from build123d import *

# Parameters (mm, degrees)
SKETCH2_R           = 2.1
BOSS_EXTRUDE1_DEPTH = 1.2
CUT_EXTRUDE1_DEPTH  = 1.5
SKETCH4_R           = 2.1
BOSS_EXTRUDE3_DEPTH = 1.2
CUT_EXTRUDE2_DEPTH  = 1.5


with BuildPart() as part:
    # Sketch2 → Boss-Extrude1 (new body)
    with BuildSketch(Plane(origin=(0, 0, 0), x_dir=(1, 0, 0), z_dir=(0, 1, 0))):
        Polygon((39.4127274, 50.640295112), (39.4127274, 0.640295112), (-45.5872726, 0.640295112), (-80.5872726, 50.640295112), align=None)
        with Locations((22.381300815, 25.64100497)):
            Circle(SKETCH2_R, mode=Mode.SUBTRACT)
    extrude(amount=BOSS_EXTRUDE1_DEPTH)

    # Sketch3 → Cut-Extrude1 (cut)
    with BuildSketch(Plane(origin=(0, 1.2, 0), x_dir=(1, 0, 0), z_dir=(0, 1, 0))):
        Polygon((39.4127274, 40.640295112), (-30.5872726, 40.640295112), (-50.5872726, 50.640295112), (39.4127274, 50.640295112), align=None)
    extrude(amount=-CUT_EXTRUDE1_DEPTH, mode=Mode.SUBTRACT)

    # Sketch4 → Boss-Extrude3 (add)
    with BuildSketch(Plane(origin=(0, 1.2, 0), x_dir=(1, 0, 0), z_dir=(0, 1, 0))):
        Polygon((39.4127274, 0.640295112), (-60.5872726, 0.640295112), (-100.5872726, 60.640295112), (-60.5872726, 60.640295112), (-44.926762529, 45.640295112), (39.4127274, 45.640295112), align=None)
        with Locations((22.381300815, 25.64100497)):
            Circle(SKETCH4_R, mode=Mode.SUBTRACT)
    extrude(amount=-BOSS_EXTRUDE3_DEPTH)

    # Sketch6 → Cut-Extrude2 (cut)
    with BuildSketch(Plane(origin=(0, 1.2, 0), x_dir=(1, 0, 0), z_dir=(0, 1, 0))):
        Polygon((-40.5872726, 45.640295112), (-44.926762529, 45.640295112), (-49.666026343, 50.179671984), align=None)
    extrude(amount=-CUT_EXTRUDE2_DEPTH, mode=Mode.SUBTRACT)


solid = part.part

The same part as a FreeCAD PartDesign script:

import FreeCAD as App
import Part
import Sketcher

V = App.Vector


def add_polygon(sketch, points):
    """Adds a closed chain of lines whose ends are joined by coincident constraints."""
    first, n = sketch.GeometryCount, len(points)
    for a, b in zip(points, points[1:] + points[:1]):
        sketch.addGeometry(Part.LineSegment(App.Vector(*a, 0), App.Vector(*b, 0)), False)
    for i in range(n):
        sketch.addConstraint(Sketcher.Constraint("Coincident", first + i, 2, first + (i + 1) % n, 1))

doc = App.newDocument("Part")
body = doc.addObject("PartDesign::Body", "Body")

# Sketch on XZ plane
sketch1 = body.newObject("Sketcher::SketchObject", "Sketch")
sketch1.AttachmentSupport = (doc.getObject("XZ_Plane"), [""])
sketch1.MapMode = "FlatFace"
add_polygon(sketch1, [(39.4, -0.6), (39.4, -50.6), (-80.6, -50.6), (-45.6, -0.6)])  # lines 0-3
sketch1.addGeometry(Part.Circle(V(22.4, -25.6, 0), V(0, 0, 1), 2.1), False)  # 4
sketch1.addConstraint([
    Sketcher.Constraint("Vertical", 0),
    Sketcher.Constraint("Horizontal", 1),
    Sketcher.Constraint("Horizontal", 3),
    Sketcher.Constraint("Diameter", 4, 4.2),
    Sketcher.Constraint("DistanceX", 1, 2, 1, 1, 120.0),
    Sketcher.Constraint("DistanceX", 3, 1, 3, 2, 85.0),
    Sketcher.Constraint("DistanceY", 0, 2, 0, 1, 50.0),
    Sketcher.Constraint("DistanceX", -1, 1, 4, 3, 22.381301),
    Sketcher.Constraint("DistanceY", 0, 2, 4, 3, 24.99929),
    Sketcher.Constraint("DistanceY", 4, 3, -1, 1, 25.641005),
    Sketcher.Constraint("DistanceX", -1, 1, 0, 2, 39.412727),
])
pad1 = body.newObject("PartDesign::Pad", "Pad")
pad1.Profile = sketch1
pad1.Length = 1.2
pad1.Reversed = True

# Sketch on XZ plane
sketch2 = body.newObject("Sketcher::SketchObject", "Sketch001")
sketch2.AttachmentSupport = (doc.getObject("XZ_Plane"), [""])
sketch2.MapMode = "FlatFace"
sketch2.AttachmentOffset = App.Placement(V(0, 0, -1.2), App.Rotation())
add_polygon(sketch2, [(-31, -41), (39, -41), (39, -51), (-51, -51)])  # lines 0-3
sketch2.addConstraint([
    Sketcher.Constraint("Horizontal", 0),
    Sketcher.Constraint("Vertical", 1),
    Sketcher.Constraint("Horizontal", 2),
    Sketcher.Constraint("DistanceX", 0, 1, 0, 2, 70.0),
    Sketcher.Constraint("DistanceX", 2, 2, 2, 1, 90.0),
    Sketcher.Constraint("DistanceY", 1, 2, 1, 1, 10.0),
    Sketcher.Constraint("DistanceX", -1, 1, 0, 2, 39.412727),
    Sketcher.Constraint("DistanceY", 0, 2, -1, 1, 40.640295),
])
pocket1 = body.newObject("PartDesign::Pocket", "Pocket")
pocket1.Profile = sketch2
pocket1.Length = 1.5
pocket1.Reversed = True

# Sketch on XZ plane
sketch3 = body.newObject("Sketcher::SketchObject", "Sketch002")
sketch3.AttachmentSupport = (doc.getObject("XZ_Plane"), [""])
sketch3.MapMode = "FlatFace"
sketch3.AttachmentOffset = App.Placement(V(0, 0, -1.2), App.Rotation())
add_polygon(sketch3, [(-60.6, -0.6), (39.4, -0.6), (39.4, -45.6), (-44.9, -45.6), (-60.6, -60.6), (-100.6, -60.6)])  # lines 0-5
sketch3.addGeometry(Part.Circle(V(22.4, -25.6, 0), V(0, 0, 1), 2.1), False)  # 6
sketch3.addConstraint([
    Sketcher.Constraint("Horizontal", 0),
    Sketcher.Constraint("Vertical", 1),
    Sketcher.Constraint("Horizontal", 2),
    Sketcher.Constraint("Horizontal", 4),
    Sketcher.Constraint("Vertical", 3, 2, 5, 2),
    Sketcher.Constraint("Diameter", 6, 4.2),
    Sketcher.Constraint("DistanceX", 0, 1, 0, 2, 100.0),
    Sketcher.Constraint("DistanceX", 4, 2, 4, 1, 40.0),
    Sketcher.Constraint("DistanceY", 1, 2, 1, 1, 45.0),
    Sketcher.Constraint("DistanceY", 3, 2, 2, 2, 15.0),
    Sketcher.Constraint("DistanceX", 2, 2, 2, 1, 84.33949),
    Sketcher.Constraint("DistanceX", -1, 1, 6, 3, 22.381301),
    Sketcher.Constraint("DistanceY", 6, 3, 0, 2, 25.00071),
    Sketcher.Constraint("DistanceY", 6, 3, -1, 1, 25.641005),
    Sketcher.Constraint("DistanceX", -1, 1, 0, 2, 39.412727),
])
pad2 = body.newObject("PartDesign::Pad", "Pad001")
pad2.Profile = sketch3
pad2.Length = 1.2

# Sketch on XZ plane
sketch4 = body.newObject("Sketcher::SketchObject", "Sketch003")
sketch4.AttachmentSupport = (doc.getObject("XZ_Plane"), [""])
sketch4.MapMode = "FlatFace"
sketch4.AttachmentOffset = App.Placement(V(0, 0, -1.2), App.Rotation())
add_polygon(sketch4, [(-44.9, -45.6), (-40.6, -45.6), (-49.7, -50.2)])  # lines 0-2
sketch4.addConstraint([
    Sketcher.Constraint("Horizontal", 0),
    Sketcher.Constraint("DistanceX", 0, 1, 0, 2, 4.33949),
    Sketcher.Constraint("DistanceY", 1, 2, -1, 1, 50.179672),
    Sketcher.Constraint("Distance", 1, 10.150355),
    Sketcher.Constraint("Distance", 2, 6.562512),
    Sketcher.Constraint("DistanceX", 0, 2, -1, 1, 40.587273),
])
pocket2 = body.newObject("PartDesign::Pocket", "Pocket001")
pocket2.Profile = sketch4
pocket2.Length = 1.5
pocket2.Reversed = True

doc.recompute()
